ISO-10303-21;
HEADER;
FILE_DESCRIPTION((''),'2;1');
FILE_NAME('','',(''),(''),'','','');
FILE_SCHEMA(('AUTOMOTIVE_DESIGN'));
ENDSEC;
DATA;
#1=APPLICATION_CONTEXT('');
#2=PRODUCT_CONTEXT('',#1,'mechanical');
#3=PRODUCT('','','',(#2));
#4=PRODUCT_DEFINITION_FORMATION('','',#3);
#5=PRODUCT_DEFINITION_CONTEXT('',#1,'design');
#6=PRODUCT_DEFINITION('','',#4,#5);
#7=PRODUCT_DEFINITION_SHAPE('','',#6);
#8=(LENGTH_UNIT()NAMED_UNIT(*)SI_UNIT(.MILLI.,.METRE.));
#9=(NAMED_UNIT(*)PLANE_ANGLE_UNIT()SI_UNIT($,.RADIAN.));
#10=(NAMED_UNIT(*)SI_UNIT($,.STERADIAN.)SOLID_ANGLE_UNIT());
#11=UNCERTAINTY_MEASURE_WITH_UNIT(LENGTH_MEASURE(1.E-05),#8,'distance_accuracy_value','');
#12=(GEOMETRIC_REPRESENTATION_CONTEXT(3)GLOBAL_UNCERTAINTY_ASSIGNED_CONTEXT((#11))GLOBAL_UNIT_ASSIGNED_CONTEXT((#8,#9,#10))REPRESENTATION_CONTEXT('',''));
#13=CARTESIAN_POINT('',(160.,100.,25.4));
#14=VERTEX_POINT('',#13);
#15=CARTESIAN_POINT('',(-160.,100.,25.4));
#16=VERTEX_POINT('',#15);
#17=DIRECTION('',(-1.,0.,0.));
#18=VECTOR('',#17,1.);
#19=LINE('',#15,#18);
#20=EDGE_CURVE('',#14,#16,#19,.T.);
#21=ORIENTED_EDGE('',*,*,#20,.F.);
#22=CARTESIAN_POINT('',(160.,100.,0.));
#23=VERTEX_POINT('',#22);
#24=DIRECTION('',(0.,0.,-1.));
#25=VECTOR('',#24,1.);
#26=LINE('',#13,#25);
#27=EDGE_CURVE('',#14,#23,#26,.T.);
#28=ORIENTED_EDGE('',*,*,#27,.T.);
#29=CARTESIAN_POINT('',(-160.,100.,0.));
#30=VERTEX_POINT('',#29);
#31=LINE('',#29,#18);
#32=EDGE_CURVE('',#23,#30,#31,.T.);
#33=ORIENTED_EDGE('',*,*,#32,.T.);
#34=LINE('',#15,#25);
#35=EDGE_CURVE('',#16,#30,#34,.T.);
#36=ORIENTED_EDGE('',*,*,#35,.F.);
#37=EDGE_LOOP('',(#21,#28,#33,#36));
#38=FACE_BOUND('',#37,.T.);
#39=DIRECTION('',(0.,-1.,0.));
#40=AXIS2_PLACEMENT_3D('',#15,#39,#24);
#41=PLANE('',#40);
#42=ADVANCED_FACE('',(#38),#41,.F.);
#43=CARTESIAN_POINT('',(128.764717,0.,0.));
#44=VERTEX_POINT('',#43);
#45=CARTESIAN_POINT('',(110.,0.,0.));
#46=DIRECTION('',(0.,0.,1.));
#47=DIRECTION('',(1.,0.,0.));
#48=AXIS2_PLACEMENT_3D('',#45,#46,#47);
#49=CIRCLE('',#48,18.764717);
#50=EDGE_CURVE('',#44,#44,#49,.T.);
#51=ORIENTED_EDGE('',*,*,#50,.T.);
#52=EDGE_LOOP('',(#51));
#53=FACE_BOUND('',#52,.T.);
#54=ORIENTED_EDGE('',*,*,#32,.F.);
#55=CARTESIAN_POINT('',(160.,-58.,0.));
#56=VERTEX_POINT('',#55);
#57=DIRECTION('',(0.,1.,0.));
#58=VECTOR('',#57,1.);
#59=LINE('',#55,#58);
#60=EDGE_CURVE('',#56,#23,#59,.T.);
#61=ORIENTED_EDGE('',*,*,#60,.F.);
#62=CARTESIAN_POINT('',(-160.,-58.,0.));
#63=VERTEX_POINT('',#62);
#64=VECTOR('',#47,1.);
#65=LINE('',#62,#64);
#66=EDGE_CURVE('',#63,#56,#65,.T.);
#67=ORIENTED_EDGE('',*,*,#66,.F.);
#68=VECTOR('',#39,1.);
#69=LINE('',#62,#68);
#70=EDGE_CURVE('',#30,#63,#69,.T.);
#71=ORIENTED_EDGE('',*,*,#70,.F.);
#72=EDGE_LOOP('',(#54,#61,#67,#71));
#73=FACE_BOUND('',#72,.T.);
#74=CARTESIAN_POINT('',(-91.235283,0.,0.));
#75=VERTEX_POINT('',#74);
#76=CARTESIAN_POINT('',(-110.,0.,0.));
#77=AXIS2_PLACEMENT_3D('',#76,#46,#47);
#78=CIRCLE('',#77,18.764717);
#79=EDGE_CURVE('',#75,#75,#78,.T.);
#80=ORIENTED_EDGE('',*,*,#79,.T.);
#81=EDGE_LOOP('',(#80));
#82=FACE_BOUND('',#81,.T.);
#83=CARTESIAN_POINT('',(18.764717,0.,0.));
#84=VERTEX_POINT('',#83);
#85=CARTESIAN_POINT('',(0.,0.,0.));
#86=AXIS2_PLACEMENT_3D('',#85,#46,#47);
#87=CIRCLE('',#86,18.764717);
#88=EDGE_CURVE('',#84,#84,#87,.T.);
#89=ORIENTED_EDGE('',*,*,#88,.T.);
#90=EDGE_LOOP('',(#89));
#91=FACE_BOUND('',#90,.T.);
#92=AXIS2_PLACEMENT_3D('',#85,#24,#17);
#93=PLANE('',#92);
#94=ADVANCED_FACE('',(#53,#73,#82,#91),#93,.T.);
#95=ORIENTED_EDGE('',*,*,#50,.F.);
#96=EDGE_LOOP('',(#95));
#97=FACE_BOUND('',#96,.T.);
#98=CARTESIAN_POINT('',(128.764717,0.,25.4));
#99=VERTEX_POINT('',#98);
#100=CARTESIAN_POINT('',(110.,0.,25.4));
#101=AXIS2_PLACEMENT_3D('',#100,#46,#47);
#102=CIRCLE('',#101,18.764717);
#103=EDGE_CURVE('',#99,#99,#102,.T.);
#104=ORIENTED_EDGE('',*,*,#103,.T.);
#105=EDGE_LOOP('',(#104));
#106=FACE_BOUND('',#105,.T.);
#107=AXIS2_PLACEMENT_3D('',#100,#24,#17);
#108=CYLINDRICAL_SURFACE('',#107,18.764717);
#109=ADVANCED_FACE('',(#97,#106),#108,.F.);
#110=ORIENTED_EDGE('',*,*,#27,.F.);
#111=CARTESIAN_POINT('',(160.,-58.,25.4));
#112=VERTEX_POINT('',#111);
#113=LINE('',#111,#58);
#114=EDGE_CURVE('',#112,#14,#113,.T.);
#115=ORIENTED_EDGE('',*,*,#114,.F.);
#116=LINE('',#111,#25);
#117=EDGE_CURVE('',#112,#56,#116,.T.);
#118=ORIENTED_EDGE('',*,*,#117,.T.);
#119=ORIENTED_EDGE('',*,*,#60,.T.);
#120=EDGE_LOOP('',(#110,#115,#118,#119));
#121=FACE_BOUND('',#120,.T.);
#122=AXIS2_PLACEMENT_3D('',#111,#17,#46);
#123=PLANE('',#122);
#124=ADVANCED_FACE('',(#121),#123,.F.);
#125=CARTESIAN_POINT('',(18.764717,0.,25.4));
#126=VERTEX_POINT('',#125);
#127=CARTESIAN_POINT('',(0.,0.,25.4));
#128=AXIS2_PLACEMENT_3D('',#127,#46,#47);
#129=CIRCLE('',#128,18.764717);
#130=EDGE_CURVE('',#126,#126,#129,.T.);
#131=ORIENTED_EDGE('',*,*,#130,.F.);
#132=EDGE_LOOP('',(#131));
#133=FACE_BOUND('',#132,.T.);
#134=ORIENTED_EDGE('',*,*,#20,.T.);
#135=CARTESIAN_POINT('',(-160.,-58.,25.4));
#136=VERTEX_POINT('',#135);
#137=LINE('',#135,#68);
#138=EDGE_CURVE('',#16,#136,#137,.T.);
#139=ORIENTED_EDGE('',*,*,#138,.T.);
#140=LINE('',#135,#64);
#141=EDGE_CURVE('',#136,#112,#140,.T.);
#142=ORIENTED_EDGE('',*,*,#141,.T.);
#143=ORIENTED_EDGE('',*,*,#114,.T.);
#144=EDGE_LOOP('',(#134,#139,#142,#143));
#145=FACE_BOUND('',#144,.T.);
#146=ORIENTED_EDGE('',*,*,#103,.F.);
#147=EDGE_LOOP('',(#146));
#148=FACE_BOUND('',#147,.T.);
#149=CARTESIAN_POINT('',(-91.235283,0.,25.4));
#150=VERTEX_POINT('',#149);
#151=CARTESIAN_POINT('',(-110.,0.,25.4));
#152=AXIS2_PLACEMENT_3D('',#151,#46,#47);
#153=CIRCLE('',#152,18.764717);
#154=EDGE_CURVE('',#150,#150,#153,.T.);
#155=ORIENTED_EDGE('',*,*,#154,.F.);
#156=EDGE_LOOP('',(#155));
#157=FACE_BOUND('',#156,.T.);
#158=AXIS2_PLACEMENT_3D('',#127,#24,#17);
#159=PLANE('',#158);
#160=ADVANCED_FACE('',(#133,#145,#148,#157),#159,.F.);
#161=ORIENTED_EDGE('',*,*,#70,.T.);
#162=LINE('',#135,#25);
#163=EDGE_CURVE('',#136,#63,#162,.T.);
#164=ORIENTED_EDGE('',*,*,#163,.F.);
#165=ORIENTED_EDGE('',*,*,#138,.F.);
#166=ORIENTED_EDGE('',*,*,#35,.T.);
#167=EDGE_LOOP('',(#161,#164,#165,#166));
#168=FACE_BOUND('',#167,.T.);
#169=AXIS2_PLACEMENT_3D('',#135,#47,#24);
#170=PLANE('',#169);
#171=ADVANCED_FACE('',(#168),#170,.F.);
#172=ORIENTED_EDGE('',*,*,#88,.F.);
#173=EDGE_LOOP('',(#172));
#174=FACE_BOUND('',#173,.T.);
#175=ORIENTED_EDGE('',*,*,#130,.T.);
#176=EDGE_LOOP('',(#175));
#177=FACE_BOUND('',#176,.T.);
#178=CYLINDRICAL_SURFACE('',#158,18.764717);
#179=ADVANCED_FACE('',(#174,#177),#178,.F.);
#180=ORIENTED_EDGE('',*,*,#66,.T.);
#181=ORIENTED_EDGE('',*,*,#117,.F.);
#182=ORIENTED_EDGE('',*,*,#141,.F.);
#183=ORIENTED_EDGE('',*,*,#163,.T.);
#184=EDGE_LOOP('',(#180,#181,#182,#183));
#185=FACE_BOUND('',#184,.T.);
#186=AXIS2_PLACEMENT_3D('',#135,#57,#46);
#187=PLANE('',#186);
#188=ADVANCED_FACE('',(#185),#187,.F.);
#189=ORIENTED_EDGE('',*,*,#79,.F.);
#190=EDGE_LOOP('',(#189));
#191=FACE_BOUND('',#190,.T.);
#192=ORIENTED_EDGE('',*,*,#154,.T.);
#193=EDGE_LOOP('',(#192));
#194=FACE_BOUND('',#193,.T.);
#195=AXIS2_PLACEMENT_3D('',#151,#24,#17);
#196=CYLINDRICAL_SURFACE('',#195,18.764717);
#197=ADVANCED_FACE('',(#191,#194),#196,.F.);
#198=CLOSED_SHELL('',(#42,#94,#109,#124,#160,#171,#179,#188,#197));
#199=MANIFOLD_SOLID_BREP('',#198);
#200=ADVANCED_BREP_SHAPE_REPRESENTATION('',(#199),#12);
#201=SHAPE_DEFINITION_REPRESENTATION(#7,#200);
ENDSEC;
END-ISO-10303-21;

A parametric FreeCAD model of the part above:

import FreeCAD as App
import Part
import Sketcher
from FreeCAD import Vector
Q = App.Units.Quantity

doc = App.newDocument("Part")
body = doc.addObject("PartDesign::Body", "Body")

# Sketch on XY plane
sketch1 = body.newObject("Sketcher::SketchObject", "Sketch")
sketch1.AttachmentSupport = (doc.getObject("XY_Plane"), [""])
sketch1.MapMode = "FlatFace"
sketch1.addGeometry(Part.LineSegment(Vector(-160, 100, 0), Vector(-160, -58, 0)), False)
sketch1.addGeometry(Part.LineSegment(Vector(-160, -58, 0), Vector(160, -58, 0)), False)
sketch1.addGeometry(Part.LineSegment(Vector(160, -58, 0), Vector(160, 100, 0)), False)
sketch1.addGeometry(Part.LineSegment(Vector(160, 100, 0), Vector(-160, 100, 0)), False)
sketch1.addGeometry(Part.Circle(Vector(-110, 0, 0), Vector(0, 0, 1), 18.764717), False)
sketch1.addGeometry(Part.Circle(Vector(0, 0, 0), Vector(0, 0, 1), 18.764717), False)
sketch1.addGeometry(Part.Circle(Vector(110, 0, 0), Vector(0, 0, 1), 18.764717), False)
sketch1.addConstraint(Sketcher.Constraint("Coincident", 0, 2, 1, 1))
sketch1.addConstraint(Sketcher.Constraint("Coincident", 1, 2, 2, 1))
sketch1.addConstraint(Sketcher.Constraint("Coincident", 2, 2, 3, 1))
sketch1.addConstraint(Sketcher.Constraint("Coincident", 3, 2, 0, 1))
sketch1.addConstraint(Sketcher.Constraint("Vertical", 0))
sketch1.addConstraint(Sketcher.Constraint("Horizontal", 1))
sketch1.addConstraint(Sketcher.Constraint("Vertical", 2))
sketch1.addConstraint(Sketcher.Constraint("Horizontal", 3))
sketch1.addConstraint(Sketcher.Constraint("Coincident", 5, 3, -1, 1))
sketch1.addConstraint(Sketcher.Constraint("Equal", 4, 5))
sketch1.addConstraint(Sketcher.Constraint("Equal", 5, 6))
sketch1.addConstraint(Sketcher.Constraint("Symmetric", 4, 3, 6, 3, -1, 1))
sketch1.addConstraint(Sketcher.Constraint("PointOnObject", 4, 3, -1))
sketch1.addConstraint(Sketcher.Constraint("DistanceX", 1, 1, 1, 2, Q("320 mm")))
sketch1.addConstraint(Sketcher.Constraint("DistanceY", 0, 2, 0, 1, Q("158 mm")))
sketch1.addConstraint(Sketcher.Constraint("DistanceX", 4, 3, -1, 1, Q("110 mm")))
sketch1.addConstraint(Sketcher.Constraint("DistanceX", 0, 2, -1, 1, Q("160 mm")))
sketch1.addConstraint(Sketcher.Constraint("DistanceY", 0, 2, -1, 1, Q("58 mm")))
sketch1.addConstraint(Sketcher.Constraint("Diameter", 4, Q("37.529434 mm")))
pad1 = body.newObject("PartDesign::Pad", "Pad")
pad1.Profile = sketch1
pad1.Length = 25.4

doc.recompute()
